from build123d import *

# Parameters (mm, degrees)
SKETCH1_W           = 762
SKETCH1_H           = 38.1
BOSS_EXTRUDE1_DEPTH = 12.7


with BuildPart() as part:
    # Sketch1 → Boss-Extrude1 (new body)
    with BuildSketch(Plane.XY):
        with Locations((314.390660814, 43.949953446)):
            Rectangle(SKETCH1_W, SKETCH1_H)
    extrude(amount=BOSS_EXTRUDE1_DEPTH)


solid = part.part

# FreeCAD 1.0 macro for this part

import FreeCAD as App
import Part
import Sketcher

V = App.Vector
Q = App.Units.Quantity


def add_polygon(sketch, points):
    """Adds a closed chain of lines whose ends are joined by coincident constraints."""
    first, n = sketch.GeometryCount, len(points)
    for a, b in zip(points, points[1:] + points[:1]):
        sketch.addGeometry(Part.LineSegment(App.Vector(*a, 0), App.Vector(*b, 0)), False)
    for i in range(n):
        sketch.addConstraint(Sketcher.Constraint("Coincident", first + i, 2, first + (i + 1) % n, 1))

doc = App.newDocument("Part")
body = doc.addObject("PartDesign::Body", "Body")

# Sketch on XY plane
sketch1 = body.newObject("Sketcher::SketchObject", "Sketch")
sketch1.AttachmentSupport = (doc.getObject("XY_Plane"), [""])
sketch1.MapMode = "FlatFace"
add_polygon(sketch1, [(-67, 63), (-67, 25), (695, 25), (695, 63)])  # lines 0-3
sketch1.addConstraint(Sketcher.Constraint("Vertical", 0))
sketch1.addConstraint(Sketcher.Constraint("Horizontal", 1))
sketch1.addConstraint(Sketcher.Constraint("Vertical", 2))
sketch1.addConstraint(Sketcher.Constraint("Horizontal", 3))
sketch1.addConstraint(Sketcher.Constraint("DistanceX", 1, 1, 1, 2, Q("30 in")))
sketch1.addConstraint(Sketcher.Constraint("DistanceY", 0, 2, 0, 1, Q("1.5 in")))
sketch1.addConstraint(Sketcher.Constraint("DistanceX", 0, 2, -1, 1, Q("66.609339 mm")))
sketch1.addConstraint(Sketcher.Constraint("DistanceY", -1, 1, 0, 2, Q("24.899953 mm")))
pad1 = body.newObject("PartDesign::Pad", "Pad")
pad1.Profile = sketch1
pad1.Length = Q("0.5 in")

doc.recompute()
